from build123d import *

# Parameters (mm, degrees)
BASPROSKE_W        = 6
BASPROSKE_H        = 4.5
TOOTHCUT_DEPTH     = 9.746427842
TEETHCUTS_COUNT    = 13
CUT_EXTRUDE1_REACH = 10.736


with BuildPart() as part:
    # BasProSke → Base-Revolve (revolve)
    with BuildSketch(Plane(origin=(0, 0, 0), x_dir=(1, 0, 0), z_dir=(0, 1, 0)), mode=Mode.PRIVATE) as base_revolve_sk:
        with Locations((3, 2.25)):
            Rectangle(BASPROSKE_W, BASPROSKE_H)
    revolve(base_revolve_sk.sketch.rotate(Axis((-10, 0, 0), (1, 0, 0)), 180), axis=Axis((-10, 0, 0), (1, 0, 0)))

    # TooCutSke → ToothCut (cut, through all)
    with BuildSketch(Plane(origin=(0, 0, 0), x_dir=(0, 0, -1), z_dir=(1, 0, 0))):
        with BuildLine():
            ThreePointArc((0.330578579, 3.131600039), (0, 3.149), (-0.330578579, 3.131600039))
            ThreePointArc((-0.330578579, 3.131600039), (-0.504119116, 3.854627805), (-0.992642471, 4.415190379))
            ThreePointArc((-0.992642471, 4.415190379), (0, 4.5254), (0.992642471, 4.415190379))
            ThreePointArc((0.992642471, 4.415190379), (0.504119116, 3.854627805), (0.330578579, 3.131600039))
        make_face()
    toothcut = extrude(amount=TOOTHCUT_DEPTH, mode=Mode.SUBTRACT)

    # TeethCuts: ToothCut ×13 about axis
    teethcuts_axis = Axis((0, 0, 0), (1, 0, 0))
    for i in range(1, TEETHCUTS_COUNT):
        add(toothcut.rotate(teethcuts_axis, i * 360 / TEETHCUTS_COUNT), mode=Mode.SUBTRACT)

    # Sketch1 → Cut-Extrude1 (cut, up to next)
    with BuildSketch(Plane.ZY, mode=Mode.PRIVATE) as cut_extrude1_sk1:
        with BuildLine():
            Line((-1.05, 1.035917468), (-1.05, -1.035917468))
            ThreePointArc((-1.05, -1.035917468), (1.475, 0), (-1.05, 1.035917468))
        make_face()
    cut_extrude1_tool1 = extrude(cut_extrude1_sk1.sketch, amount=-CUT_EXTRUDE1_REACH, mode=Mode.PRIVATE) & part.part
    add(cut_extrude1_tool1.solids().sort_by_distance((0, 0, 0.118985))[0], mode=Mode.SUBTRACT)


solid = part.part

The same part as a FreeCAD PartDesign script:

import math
import FreeCAD as App
import Part
import Sketcher

V = App.Vector

doc = App.newDocument("Part")
body = doc.addObject("PartDesign::Body", "Body")

# Sketch on XZ plane
sketch1 = doc.addObject("Sketcher::SketchObject", "Sketch")
body.addObject(sketch1)
sketch1.AttachmentSupport = (doc.XZ_Plane, [""])
sketch1.MapMode = "FlatFace"
sketch1.addGeometry(Part.LineSegment(V(0, -4.5, 0), V(0, 0, 0)), False)
sketch1.addGeometry(Part.LineSegment(V(0, 0, 0), V(6, 0, 0)), False)
sketch1.addGeometry(Part.LineSegment(V(6, 0, 0), V(6, -4.5, 0)), False)
sketch1.addGeometry(Part.LineSegment(V(6, -4.5, 0), V(0, -4.5, 0)), False)
sketch1.addConstraint(Sketcher.Constraint("Coincident", 0, 2, 1, 1))
sketch1.addConstraint(Sketcher.Constraint("Coincident", 1, 2, 2, 1))
sketch1.addConstraint(Sketcher.Constraint("Coincident", 2, 2, 3, 1))
sketch1.addConstraint(Sketcher.Constraint("Coincident", 3, 2, 0, 1))
sketch1.addConstraint(Sketcher.Constraint("Vertical", 0))
sketch1.addConstraint(Sketcher.Constraint("Horizontal", 1))
sketch1.addConstraint(Sketcher.Constraint("Vertical", 2))
sketch1.addConstraint(Sketcher.Constraint("Horizontal", 3))
sketch1.addConstraint(Sketcher.Constraint("Coincident", 0, 2, -1, 1))
sketch1.addConstraint(Sketcher.Constraint("DistanceX", 1, 1, 1, 2, 6.0))
sketch1.addConstraint(Sketcher.Constraint("DistanceY", 0, 1, 0, 2, 4.5))
revolution = doc.addObject("PartDesign::Revolution", "Revolution")
body.addObject(revolution)
revolution.Profile = sketch1
revolution.ReferenceAxis = (sketch1, ["H_Axis"])
revolution.Angle = 360

# Sketch on YZ plane
sketch2 = doc.addObject("Sketcher::SketchObject", "Sketch001")
body.addObject(sketch2)
sketch2.AttachmentSupport = (doc.YZ_Plane, [""])
sketch2.MapMode = "FlatFace"
sketch2.addGeometry(Part.ArcOfCircle(Part.Circle(V(0, 0, 0), V(0, 0, 1), 3.1), math.radians(-6.03), math.radians(6.03)), False)
sketch2.addGeometry(Part.ArcOfCircle(Part.Circle(V(3.1, -1.9, 0), V(0, 0, 1), 1.6), math.radians(35), math.radians(90)), False)
sketch2.addGeometry(Part.ArcOfCircle(Part.Circle(V(0, 0, 0), V(0, 0, 1), 4.5), math.radians(-13), math.radians(13)), False)
sketch2.addGeometry(Part.ArcOfCircle(Part.Circle(V(3.1, 1.9, 0), V(0, 0, 1), 1.6), math.radians(-90), math.radians(-35)), False)
sketch2.addConstraint(Sketcher.Constraint("Coincident", 0, 1, 1, 2))
sketch2.addConstraint(Sketcher.Constraint("Coincident", 1, 1, 2, 1))
sketch2.addConstraint(Sketcher.Constraint("Coincident", 2, 2, 3, 2))
sketch2.addConstraint(Sketcher.Constraint("Coincident", 3, 1, 0, 2))
sketch2.addConstraint(Sketcher.Constraint("Coincident", 0, 3, -1, 1))
sketch2.addConstraint(Sketcher.Constraint("Coincident", 2, 3, -1, 1))
sketch2.addConstraint(Sketcher.Constraint("Equal", 1, 3))
sketch2.addConstraint(Sketcher.Constraint("Symmetric", 1, 3, 3, 3, -1))
sketch2.addConstraint(Sketcher.Constraint("Radius", 1, 1.56))
sketch2.addConstraint(Sketcher.Constraint("Radius", 0, 3.149))
sketch2.addConstraint(Sketcher.Constraint("Radius", 2, 4.5254))
sketch2.addConstraint(Sketcher.Constraint("DistanceX", -1, 1, 0, 1, 3.1316))
sketch2.addConstraint(Sketcher.Constraint("DistanceY", 1, 1, 3, 3, 2.883201))
pocket1 = doc.addObject("PartDesign::Pocket", "Pocket")
body.addObject(pocket1)
pocket1.Profile = sketch2
pocket1.Type = "ThroughAll"
pocket1.Reversed = True
doc.recompute()

polarpattern = doc.addObject("PartDesign::PolarPattern", "PolarPattern")
body.addObject(polarpattern)
polarpattern.Originals = [pocket1]
polarpattern.Axis = (doc.X_Axis, [""])
polarpattern.Angle = 360
polarpattern.Occurrences = 13
body.Tip = polarpattern

# Sketch on YZ plane
sketch3 = doc.addObject("Sketcher::SketchObject", "Sketch002")
body.addObject(sketch3)
sketch3.AttachmentSupport = (doc.YZ_Plane, [""])
sketch3.MapMode = "FlatFace"
sketch3.addGeometry(Part.LineSegment(V(1, -1.1, 0), V(-1, -1.1, 0)), False)
sketch3.addGeometry(Part.ArcOfCircle(Part.Circle(V(0, 0, 0), V(0, 0, 1), 1.5), math.radians(-45), math.radians(225)), False)
sketch3.addConstraint(Sketcher.Constraint("Coincident", 0, 1, 1, 1))
sketch3.addConstraint(Sketcher.Constraint("Coincident", 1, 2, 0, 2))
sketch3.addConstraint(Sketcher.Constraint("Horizontal", 0))
sketch3.addConstraint(Sketcher.Constraint("Coincident", 1, 3, -1, 1))
sketch3.addConstraint(Sketcher.Constraint("Radius", 1, 1.475))
sketch3.addConstraint(Sketcher.Constraint("DistanceY", 0, 1, -1, 1, 1.05))
pocket2 = doc.addObject("PartDesign::Pocket", "Pocket001")
body.addObject(pocket2)
pocket2.Profile = sketch3
pocket2.Type = "UpToFirst"
pocket2.Reversed = True

doc.recompute()
